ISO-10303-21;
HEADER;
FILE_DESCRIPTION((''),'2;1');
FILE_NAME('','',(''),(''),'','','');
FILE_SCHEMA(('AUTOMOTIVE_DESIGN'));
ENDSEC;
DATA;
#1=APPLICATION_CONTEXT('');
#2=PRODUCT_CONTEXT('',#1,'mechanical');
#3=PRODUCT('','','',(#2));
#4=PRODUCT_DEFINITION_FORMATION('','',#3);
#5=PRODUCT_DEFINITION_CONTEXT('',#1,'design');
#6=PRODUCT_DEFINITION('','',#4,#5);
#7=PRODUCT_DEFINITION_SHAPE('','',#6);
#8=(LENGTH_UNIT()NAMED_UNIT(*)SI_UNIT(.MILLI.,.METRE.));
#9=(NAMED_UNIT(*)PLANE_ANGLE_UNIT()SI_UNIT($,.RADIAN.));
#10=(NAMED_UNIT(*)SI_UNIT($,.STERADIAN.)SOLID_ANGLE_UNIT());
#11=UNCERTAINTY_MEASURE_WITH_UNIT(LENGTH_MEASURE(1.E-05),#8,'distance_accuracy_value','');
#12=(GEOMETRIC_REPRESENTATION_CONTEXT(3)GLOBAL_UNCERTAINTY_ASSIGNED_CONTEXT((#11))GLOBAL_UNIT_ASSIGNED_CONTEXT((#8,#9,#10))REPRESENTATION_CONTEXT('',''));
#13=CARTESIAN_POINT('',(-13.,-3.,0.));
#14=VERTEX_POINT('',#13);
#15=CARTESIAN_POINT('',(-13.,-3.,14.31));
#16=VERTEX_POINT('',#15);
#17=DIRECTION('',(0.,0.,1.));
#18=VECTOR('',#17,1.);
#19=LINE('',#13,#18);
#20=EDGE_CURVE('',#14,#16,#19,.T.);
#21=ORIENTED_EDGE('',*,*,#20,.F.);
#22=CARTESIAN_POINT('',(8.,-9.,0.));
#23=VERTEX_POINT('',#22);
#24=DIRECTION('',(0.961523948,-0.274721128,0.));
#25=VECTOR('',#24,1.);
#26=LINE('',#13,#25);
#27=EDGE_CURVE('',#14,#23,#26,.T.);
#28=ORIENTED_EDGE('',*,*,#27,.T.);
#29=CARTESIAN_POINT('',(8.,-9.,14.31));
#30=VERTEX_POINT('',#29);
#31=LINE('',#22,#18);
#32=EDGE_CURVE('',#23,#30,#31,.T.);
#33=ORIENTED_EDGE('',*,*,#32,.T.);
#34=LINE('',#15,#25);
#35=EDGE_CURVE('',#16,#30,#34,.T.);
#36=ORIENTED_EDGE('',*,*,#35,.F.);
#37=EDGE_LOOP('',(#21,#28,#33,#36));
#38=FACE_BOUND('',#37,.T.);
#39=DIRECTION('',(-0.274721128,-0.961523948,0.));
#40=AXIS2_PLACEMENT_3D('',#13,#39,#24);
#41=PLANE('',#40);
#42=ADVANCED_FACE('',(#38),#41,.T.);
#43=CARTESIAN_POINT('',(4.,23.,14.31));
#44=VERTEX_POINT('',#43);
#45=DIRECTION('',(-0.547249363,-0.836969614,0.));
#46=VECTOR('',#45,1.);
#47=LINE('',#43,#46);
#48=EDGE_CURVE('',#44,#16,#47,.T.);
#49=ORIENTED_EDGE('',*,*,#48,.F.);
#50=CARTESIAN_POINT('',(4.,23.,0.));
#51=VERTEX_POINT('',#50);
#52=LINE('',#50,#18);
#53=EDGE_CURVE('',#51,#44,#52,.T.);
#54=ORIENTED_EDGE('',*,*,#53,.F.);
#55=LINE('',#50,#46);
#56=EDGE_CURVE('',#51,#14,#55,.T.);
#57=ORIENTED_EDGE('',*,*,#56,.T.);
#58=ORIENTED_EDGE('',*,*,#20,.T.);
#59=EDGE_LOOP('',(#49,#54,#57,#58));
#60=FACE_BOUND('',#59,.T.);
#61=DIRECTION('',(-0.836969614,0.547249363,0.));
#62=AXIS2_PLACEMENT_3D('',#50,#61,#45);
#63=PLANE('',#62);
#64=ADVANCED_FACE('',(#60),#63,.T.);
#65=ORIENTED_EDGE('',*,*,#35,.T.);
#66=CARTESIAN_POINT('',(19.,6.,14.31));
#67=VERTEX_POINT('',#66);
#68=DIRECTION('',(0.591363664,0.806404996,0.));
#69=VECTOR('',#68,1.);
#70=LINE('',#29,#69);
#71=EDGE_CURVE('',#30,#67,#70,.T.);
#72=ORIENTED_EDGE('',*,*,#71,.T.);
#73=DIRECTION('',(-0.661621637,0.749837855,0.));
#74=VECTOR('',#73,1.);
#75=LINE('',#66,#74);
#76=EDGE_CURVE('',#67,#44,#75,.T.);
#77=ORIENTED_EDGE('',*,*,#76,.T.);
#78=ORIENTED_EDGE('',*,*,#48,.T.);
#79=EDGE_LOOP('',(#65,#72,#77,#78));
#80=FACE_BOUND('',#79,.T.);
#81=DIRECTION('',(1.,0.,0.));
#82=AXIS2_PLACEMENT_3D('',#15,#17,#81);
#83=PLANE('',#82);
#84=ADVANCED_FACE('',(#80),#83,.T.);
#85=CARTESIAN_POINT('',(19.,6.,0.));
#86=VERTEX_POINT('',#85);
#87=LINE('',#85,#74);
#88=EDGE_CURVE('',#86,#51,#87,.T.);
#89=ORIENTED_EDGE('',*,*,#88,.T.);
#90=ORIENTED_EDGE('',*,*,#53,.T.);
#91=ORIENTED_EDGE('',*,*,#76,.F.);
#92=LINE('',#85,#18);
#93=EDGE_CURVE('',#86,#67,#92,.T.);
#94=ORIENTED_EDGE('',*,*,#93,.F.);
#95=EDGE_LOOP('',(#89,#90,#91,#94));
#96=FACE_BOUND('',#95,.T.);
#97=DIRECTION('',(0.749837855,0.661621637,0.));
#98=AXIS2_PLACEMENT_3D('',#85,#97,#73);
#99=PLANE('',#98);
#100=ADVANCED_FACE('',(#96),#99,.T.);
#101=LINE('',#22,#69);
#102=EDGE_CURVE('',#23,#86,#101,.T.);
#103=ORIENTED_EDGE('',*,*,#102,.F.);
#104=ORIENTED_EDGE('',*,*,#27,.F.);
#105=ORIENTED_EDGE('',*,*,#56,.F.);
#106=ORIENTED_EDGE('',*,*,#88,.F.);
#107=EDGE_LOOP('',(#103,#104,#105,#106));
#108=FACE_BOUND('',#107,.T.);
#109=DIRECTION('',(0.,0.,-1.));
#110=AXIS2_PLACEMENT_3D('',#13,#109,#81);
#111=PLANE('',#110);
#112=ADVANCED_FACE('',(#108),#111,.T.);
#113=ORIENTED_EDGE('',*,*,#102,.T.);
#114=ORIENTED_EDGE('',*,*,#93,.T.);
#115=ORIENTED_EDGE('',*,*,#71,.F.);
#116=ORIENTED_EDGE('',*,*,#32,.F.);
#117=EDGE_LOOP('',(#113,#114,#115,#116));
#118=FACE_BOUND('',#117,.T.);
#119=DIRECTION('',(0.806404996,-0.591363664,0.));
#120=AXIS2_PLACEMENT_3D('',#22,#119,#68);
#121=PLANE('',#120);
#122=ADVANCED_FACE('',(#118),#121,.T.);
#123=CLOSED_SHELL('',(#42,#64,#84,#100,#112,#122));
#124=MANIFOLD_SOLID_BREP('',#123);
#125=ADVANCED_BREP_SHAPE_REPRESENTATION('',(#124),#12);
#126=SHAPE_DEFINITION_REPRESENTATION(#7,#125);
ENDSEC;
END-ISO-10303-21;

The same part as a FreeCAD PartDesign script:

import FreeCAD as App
import Part
import Sketcher
from FreeCAD import Vector

doc = App.newDocument("Part")
body = doc.addObject("PartDesign::Body", "Body")

sketch1 = body.newObject("Sketcher::SketchObject", "Sketch")
sketch1.AttachmentSupport = (doc.getObject("XY_Plane"), [""])
sketch1.MapMode = "FlatFace"
sketch1.addGeometry(Part.LineSegment(Vector(-13, -3, 0), Vector(8, -9, 0)), False)
sketch1.addGeometry(Part.LineSegment(Vector(8, -9, 0), Vector(19, 6, 0)), False)
sketch1.addGeometry(Part.LineSegment(Vector(19, 6, 0), Vector(4, 23, 0)), False)
sketch1.addGeometry(Part.LineSegment(Vector(4, 23, 0), Vector(-13, -3, 0)), False)
sketch1.addConstraint(Sketcher.Constraint("Coincident", 0, 2, 1, 1))
sketch1.addConstraint(Sketcher.Constraint("Coincident", 1, 2, 2, 1))
sketch1.addConstraint(Sketcher.Constraint("Coincident", 2, 2, 3, 1))
sketch1.addConstraint(Sketcher.Constraint("Coincident", 3, 2, 0, 1))
sketch1.addConstraint(Sketcher.Constraint("DistanceX", -1, 1, 0, 2, 8.0))
sketch1.addConstraint(Sketcher.Constraint("DistanceY", 0, 2, -1, 1, 9.0))
sketch1.addConstraint(Sketcher.Constraint("DistanceX", -1, 1, 1, 2, 19.0))
sketch1.addConstraint(Sketcher.Constraint("DistanceY", -1, 1, 1, 2, 6.0))
sketch1.addConstraint(Sketcher.Constraint("DistanceX", -1, 1, 2, 2, 4.0))
sketch1.addConstraint(Sketcher.Constraint("DistanceY", -1, 1, 2, 2, 23.0))
sketch1.addConstraint(Sketcher.Constraint("DistanceX", 3, 2, -1, 1, 13.0))
sketch1.addConstraint(Sketcher.Constraint("DistanceY", 3, 2, -1, 1, 3.0))
pad1 = body.newObject("PartDesign::Pad", "Pad")
pad1.Profile = sketch1
pad1.Length = 14.31

doc.recompute()
